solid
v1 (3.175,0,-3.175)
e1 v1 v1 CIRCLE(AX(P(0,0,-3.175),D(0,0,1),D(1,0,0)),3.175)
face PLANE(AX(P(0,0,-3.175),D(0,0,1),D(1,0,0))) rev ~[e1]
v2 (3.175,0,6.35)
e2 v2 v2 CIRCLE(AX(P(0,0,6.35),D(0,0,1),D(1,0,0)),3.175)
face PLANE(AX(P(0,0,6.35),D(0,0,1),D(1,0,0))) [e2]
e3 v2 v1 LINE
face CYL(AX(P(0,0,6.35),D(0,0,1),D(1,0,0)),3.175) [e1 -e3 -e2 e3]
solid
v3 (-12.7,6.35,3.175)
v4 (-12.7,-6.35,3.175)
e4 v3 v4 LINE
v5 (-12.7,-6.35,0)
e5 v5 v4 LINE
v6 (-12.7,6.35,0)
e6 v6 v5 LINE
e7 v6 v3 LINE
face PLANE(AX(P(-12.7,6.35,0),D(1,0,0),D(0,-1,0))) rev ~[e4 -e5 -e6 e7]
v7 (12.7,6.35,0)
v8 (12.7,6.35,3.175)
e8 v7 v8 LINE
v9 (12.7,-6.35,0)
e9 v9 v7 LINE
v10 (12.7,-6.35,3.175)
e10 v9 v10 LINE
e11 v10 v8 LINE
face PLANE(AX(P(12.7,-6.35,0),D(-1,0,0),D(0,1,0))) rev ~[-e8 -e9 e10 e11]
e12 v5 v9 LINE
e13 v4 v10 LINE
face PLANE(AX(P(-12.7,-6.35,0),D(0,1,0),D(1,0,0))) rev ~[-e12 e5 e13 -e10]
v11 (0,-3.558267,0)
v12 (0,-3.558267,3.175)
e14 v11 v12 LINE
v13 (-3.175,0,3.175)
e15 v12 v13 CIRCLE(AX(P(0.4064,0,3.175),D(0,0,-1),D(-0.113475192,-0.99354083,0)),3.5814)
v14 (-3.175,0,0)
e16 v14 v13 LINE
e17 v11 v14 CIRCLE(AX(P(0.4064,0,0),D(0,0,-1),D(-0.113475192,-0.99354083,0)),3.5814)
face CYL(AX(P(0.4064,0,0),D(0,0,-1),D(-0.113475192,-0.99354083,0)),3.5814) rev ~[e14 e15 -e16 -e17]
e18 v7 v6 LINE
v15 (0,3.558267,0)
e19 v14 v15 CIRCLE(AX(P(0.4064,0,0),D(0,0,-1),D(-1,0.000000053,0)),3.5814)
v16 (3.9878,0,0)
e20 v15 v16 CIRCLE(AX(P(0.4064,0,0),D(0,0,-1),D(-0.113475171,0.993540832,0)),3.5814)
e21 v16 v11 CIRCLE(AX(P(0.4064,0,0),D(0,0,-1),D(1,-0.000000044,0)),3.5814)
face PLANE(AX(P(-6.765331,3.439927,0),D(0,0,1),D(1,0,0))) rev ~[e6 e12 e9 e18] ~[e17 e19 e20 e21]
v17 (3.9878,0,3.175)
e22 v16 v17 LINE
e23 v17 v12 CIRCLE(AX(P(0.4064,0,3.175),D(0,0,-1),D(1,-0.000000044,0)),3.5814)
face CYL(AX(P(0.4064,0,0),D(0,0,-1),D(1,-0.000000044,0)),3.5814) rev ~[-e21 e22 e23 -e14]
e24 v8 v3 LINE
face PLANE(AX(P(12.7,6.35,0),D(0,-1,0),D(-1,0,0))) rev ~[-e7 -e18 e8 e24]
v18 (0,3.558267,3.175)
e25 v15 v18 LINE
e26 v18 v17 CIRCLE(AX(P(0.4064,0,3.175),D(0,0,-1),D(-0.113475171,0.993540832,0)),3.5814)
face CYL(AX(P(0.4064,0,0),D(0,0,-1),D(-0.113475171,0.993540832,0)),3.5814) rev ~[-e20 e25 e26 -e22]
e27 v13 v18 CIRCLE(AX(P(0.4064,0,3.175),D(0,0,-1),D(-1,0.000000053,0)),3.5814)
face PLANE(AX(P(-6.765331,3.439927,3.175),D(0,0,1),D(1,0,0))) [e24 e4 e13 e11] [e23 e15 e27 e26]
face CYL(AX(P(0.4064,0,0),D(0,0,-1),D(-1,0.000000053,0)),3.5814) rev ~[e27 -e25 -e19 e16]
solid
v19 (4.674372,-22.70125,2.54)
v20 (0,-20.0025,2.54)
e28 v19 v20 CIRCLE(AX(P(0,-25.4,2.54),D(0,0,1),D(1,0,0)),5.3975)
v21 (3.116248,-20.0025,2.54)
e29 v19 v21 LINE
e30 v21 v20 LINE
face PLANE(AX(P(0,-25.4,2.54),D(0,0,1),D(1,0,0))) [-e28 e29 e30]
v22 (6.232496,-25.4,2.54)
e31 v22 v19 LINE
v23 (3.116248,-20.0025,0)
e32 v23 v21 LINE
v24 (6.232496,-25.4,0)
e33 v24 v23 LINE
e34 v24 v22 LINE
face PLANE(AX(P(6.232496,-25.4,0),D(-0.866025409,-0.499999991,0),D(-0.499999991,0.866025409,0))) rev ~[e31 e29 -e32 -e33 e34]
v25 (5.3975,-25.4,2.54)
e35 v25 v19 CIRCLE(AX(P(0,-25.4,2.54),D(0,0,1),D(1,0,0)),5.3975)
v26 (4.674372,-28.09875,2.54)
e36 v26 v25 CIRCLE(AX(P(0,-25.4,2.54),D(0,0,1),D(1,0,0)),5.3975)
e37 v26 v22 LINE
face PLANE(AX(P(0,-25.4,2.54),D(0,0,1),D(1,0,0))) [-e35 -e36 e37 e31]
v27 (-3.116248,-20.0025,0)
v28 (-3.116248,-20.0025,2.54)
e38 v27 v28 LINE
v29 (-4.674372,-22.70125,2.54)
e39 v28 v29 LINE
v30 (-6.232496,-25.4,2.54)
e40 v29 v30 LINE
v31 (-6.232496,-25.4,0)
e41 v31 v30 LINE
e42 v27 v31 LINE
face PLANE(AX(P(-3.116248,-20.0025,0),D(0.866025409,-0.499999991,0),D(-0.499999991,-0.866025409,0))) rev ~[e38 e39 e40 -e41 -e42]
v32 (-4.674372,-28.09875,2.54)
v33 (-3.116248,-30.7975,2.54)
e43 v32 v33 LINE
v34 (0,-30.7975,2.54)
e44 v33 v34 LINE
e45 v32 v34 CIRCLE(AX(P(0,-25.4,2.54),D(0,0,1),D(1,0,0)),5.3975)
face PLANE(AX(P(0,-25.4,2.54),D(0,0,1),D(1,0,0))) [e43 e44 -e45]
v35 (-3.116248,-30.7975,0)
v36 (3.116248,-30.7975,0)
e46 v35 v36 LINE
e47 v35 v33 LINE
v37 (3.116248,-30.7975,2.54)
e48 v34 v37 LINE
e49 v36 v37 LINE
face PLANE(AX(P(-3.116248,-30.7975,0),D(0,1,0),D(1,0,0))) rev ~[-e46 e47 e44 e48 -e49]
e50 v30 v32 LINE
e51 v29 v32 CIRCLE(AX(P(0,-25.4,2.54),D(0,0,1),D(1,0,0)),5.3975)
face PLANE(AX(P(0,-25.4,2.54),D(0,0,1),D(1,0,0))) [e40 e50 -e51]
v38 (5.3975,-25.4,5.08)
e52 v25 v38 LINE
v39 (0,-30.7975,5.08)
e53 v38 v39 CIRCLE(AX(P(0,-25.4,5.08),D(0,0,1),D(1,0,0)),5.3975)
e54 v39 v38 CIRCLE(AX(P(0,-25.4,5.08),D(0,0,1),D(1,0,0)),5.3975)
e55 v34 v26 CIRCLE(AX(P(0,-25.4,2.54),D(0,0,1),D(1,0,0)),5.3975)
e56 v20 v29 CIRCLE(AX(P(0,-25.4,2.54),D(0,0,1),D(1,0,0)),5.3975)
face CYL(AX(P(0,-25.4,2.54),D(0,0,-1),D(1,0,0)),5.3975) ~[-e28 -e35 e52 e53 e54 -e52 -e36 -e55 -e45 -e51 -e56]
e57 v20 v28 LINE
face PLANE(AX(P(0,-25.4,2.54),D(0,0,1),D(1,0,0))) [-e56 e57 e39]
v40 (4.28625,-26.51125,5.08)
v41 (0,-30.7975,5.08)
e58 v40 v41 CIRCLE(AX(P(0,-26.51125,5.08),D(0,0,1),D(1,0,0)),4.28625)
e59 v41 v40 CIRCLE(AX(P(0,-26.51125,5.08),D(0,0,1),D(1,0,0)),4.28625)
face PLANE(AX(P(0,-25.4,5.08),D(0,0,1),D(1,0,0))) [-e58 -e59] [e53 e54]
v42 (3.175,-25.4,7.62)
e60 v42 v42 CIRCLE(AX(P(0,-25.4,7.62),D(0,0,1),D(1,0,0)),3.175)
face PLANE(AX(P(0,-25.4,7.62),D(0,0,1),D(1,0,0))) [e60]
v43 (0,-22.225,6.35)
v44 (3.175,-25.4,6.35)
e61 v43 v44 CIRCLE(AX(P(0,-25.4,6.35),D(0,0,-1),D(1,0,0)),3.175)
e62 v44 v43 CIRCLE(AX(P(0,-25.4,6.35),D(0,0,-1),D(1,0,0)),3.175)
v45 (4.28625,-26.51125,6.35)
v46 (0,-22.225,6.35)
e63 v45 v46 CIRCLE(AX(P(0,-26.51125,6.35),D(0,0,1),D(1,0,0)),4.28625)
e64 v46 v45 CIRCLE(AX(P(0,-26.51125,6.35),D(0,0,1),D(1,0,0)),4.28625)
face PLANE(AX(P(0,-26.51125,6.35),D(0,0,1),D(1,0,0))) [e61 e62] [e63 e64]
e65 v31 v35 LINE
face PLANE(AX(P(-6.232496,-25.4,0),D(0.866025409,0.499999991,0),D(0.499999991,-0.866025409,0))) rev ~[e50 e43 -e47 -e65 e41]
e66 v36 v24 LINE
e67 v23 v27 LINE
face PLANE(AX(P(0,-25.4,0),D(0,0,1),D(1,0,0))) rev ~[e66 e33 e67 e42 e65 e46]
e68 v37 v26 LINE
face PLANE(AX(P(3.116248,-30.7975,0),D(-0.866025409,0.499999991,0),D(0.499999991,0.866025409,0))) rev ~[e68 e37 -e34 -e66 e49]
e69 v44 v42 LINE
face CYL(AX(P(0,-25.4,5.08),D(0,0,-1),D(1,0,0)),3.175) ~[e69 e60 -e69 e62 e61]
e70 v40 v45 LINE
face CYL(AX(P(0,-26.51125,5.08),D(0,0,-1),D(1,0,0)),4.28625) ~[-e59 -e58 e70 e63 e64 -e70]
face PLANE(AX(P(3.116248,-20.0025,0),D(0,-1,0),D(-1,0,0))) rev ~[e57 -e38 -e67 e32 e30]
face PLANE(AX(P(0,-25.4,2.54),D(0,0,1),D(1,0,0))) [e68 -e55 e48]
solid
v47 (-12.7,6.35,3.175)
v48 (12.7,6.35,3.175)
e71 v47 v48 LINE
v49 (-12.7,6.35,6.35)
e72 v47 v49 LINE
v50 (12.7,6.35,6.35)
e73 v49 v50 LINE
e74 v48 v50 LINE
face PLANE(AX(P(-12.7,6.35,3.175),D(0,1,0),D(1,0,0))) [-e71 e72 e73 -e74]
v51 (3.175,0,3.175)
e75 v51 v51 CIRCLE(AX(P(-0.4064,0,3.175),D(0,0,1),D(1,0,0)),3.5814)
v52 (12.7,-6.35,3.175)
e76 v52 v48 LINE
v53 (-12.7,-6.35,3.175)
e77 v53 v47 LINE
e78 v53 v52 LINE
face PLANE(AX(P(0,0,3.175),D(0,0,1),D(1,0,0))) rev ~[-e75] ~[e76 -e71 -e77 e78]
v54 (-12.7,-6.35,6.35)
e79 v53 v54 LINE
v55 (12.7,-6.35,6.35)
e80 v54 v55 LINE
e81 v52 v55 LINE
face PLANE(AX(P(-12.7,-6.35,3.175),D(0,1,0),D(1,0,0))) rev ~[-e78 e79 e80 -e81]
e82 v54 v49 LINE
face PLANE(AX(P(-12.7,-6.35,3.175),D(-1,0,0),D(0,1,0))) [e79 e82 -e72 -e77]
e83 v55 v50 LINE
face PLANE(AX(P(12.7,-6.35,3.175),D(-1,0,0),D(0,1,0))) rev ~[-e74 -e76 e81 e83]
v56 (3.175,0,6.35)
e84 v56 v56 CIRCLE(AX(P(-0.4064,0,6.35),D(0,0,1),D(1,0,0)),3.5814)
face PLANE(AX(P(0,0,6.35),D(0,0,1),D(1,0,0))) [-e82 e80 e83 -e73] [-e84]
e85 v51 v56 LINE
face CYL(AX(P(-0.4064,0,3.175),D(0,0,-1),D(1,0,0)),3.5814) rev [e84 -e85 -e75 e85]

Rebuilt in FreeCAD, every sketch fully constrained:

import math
import FreeCAD as App
import Part
import Sketcher
from FreeCAD import Vector
Q = App.Units.Quantity

doc = App.newDocument("Part")
body = doc.addObject("PartDesign::Body", "Body")

# Sketch on XY plane
sketch1 = doc.addObject("Sketcher::SketchObject", "Sketch")
body.addObject(sketch1)
sketch1.AttachmentSupport = (doc.XY_Plane, [""])
sketch1.MapMode = "FlatFace"
sketch1.addGeometry([
    Part.LineSegment(Vector(-12.7, 6.3, 0), Vector(-12.7, -6.3, 0)),  # 0
    Part.LineSegment(Vector(-12.7, -6.3, 0), Vector(12.7, -6.3, 0)),  # 1
    Part.LineSegment(Vector(12.7, -6.3, 0), Vector(12.7, 6.3, 0)),  # 2
    Part.LineSegment(Vector(12.7, 6.3, 0), Vector(-12.7, 6.3, 0)),  # 3
    Part.ArcOfCircle(Part.Circle(Vector(0.4, 0, 0), Vector(0, 0, 1), 3.6), math.radians(-180), math.radians(-97)),  # 4
    Part.ArcOfCircle(Part.Circle(Vector(0.4, 0, 0), Vector(0, 0, 1), 3.6), math.radians(97), math.radians(180)),  # 5
    Part.ArcOfCircle(Part.Circle(Vector(0.4, 0, 0), Vector(0, 0, 1), 3.6), math.radians(0), math.radians(97)),  # 6
    Part.ArcOfCircle(Part.Circle(Vector(0.4, 0, 0), Vector(0, 0, 1), 3.6), math.radians(-97), math.radians(0)),  # 7
], False)
sketch1.addConstraint([
    Sketcher.Constraint("Coincident", 0, 2, 1, 1),
    Sketcher.Constraint("Coincident", 1, 2, 2, 1),
    Sketcher.Constraint("Coincident", 2, 2, 3, 1),
    Sketcher.Constraint("Coincident", 3, 2, 0, 1),
    Sketcher.Constraint("Tangent", 4, 1, 5, 2),
    Sketcher.Constraint("Tangent", 5, 1, 6, 2),
    Sketcher.Constraint("Tangent", 6, 1, 7, 2),
    Sketcher.Constraint("Tangent", 7, 1, 4, 2),
    Sketcher.Constraint("Vertical", 0),
    Sketcher.Constraint("Horizontal", 1),
    Sketcher.Constraint("Vertical", 2),
    Sketcher.Constraint("Horizontal", 3),
    Sketcher.Constraint("Equal", 4, 5),
    Sketcher.Constraint("Symmetric", 0, 2, 2, 2, -1, 1),
    Sketcher.Constraint("Symmetric", 5, 1, 7, 1, -1, 1),
    Sketcher.Constraint("PointOnObject", 4, 3, -1),
    Sketcher.Constraint("PointOnObject", 4, 1, -1),
    Sketcher.Constraint("PointOnObject", 6, 1, -1),
    Sketcher.Constraint("DistanceX", 1, 1, 1, 2, Q("1 in")),
    Sketcher.Constraint("DistanceY", 0, 2, 0, 1, Q("0.5 in")),
    Sketcher.Constraint("Radius", 4, Q("0.141 in")),
    Sketcher.Constraint("DistanceX", -1, 1, 4, 3, Q("0.016 in")),
])
pad1 = doc.addObject("PartDesign::Pad", "Pad")
body.addObject(pad1)
pad1.Profile = sketch1
pad1.Length = Q("0.125 in")
body2 = doc.addObject("PartDesign::Body", "Body001")

# Sketch on XY plane
sketch2 = doc.addObject("Sketcher::SketchObject", "Sketch001")
body2.addObject(sketch2)
sketch2.AttachmentSupport = (doc.getObject("XY_Plane001"), [""])
sketch2.MapMode = "FlatFace"
sketch2.AttachmentOffset = App.Placement(Vector(0, 0, 0.125 * 25.4), App.Rotation())
sketch2.addGeometry([
    Part.LineSegment(Vector(-12.7, 6.3, 0), Vector(-12.7, -6.3, 0)),  # 0
    Part.LineSegment(Vector(-12.7, -6.3, 0), Vector(12.7, -6.3, 0)),  # 1
    Part.LineSegment(Vector(12.7, -6.3, 0), Vector(12.7, 6.3, 0)),  # 2
    Part.LineSegment(Vector(12.7, 6.3, 0), Vector(-12.7, 6.3, 0)),  # 3
    Part.Circle(Vector(-0.4, 0, 0), Vector(0, 0, 1), 3.6),  # 4
], False)
sketch2.addConstraint([
    Sketcher.Constraint("Coincident", 0, 2, 1, 1),
    Sketcher.Constraint("Coincident", 1, 2, 2, 1),
    Sketcher.Constraint("Coincident", 2, 2, 3, 1),
    Sketcher.Constraint("Coincident", 3, 2, 0, 1),
    Sketcher.Constraint("Vertical", 0),
    Sketcher.Constraint("Horizontal", 1),
    Sketcher.Constraint("Vertical", 2),
    Sketcher.Constraint("Horizontal", 3),
    Sketcher.Constraint("Symmetric", 0, 2, 2, 2, -1, 1),
    Sketcher.Constraint("PointOnObject", 4, 3, -1),
    Sketcher.Constraint("DistanceX", 1, 1, 1, 2, Q("1 in")),
    Sketcher.Constraint("Diameter", 4, Q("0.282 in")),
    Sketcher.Constraint("DistanceY", 0, 2, 0, 1, Q("0.5 in")),
    Sketcher.Constraint("DistanceX", 4, 3, -1, 1, Q("0.016 in")),
])
pad2 = doc.addObject("PartDesign::Pad", "Pad001")
body2.addObject(pad2)
pad2.Profile = sketch2
pad2.Length = Q("0.125 in")
body3 = doc.addObject("PartDesign::Body", "Body002")

# Sketch on XY plane
sketch3 = doc.addObject("Sketcher::SketchObject", "Sketch002")
body3.addObject(sketch3)
sketch3.AttachmentSupport = (doc.getObject("XY_Plane002"), [""])
sketch3.MapMode = "FlatFace"
sketch3.AttachmentOffset = App.Placement(Vector(0, 0, 0.25 * 25.4), App.Rotation())
sketch3.addGeometry(Part.Circle(Vector(0, 0, 0), Vector(0, 0, 1), 3.2), False)
sketch3.addConstraint([
    Sketcher.Constraint("Coincident", 0, 3, -1, 1),
    Sketcher.Constraint("Diameter", 0, Q("0.25 in")),
])
pad3 = doc.addObject("PartDesign::Pad", "Pad002")
body3.addObject(pad3)
pad3.Profile = sketch3
pad3.Length = Q("0.375 in")
pad3.Reversed = True
body4 = doc.addObject("PartDesign::Body", "Body003")

# Sketch on XY plane
sketch4 = doc.addObject("Sketcher::SketchObject", "Sketch003")
body4.addObject(sketch4)
sketch4.AttachmentSupport = (doc.getObject("XY_Plane003"), [""])
sketch4.MapMode = "FlatFace"
sketch4.addGeometry([
    Part.LineSegment(Vector(3, -31, 0), Vector(6, -25, 0)),  # 0
    Part.LineSegment(Vector(6, -25, 0), Vector(3, -20, 0)),  # 1
    Part.LineSegment(Vector(3, -20, 0), Vector(-3, -20, 0)),  # 2
    Part.LineSegment(Vector(-3, -20, 0), Vector(-6, -25, 0)),  # 3
    Part.LineSegment(Vector(-6, -25, 0), Vector(-3, -31, 0)),  # 4
    Part.LineSegment(Vector(-3, -31, 0), Vector(3, -31, 0)),  # 5
], False)
sketch4.addConstraint([
    Sketcher.Constraint("Coincident", 0, 2, 1, 1),
    Sketcher.Constraint("Coincident", 1, 2, 2, 1),
    Sketcher.Constraint("Coincident", 2, 2, 3, 1),
    Sketcher.Constraint("Coincident", 3, 2, 4, 1),
    Sketcher.Constraint("Coincident", 4, 2, 5, 1),
    Sketcher.Constraint("Coincident", 5, 2, 0, 1),
    Sketcher.Constraint("Horizontal", 2),
    Sketcher.Constraint("Horizontal", 5),
    Sketcher.Constraint("Symmetric", 0, 2, 3, 2, -2),
    Sketcher.Constraint("Parallel", 0, 3),
    Sketcher.Constraint("Parallel", 1, 4),
    Sketcher.Constraint("Vertical", 2, 2, 4, 2),
    Sketcher.Constraint("Vertical", 1, 2, 5, 2),
    Sketcher.Constraint("DistanceY", 0, 2, -1, 1, Q("1 in")),
    Sketcher.Constraint("Angle", 0, Q("60.000001 deg")),
    Sketcher.Constraint("DistanceY", 4, 2, 2, 2, Q("0.425 in")),
    Sketcher.Constraint("DistanceX", 2, 2, 2, 1, Q("6.232496 mm")),
])
pad4 = doc.addObject("PartDesign::Pad", "Pad003")
body4.addObject(pad4)
pad4.Profile = sketch4
pad4.Length = Q("0.1 in")

# Sketch on XY plane
sketch5 = doc.addObject("Sketcher::SketchObject", "Sketch004")
body4.addObject(sketch5)
sketch5.AttachmentSupport = (doc.getObject("XY_Plane003"), [""])
sketch5.MapMode = "FlatFace"
sketch5.AttachmentOffset = App.Placement(Vector(0, 0, 0.1 * 25.4), App.Rotation())
sketch5.addGeometry(Part.Circle(Vector(0, -25, 0), Vector(0, 0, 1), 5), False)
sketch5.addConstraint([
    Sketcher.Constraint("PointOnObject", 0, 3, -2),
    Sketcher.Constraint("Diameter", 0, Q("0.425 in")),
    Sketcher.Constraint("DistanceY", 0, 3, -1, 1, Q("1 in")),
])
pad5 = doc.addObject("PartDesign::Pad", "Pad004")
body4.addObject(pad5)
pad5.Profile = sketch5
pad5.Length = Q("0.1 in")

# Sketch on XY plane
sketch6 = doc.addObject("Sketcher::SketchObject", "Sketch005")
body4.addObject(sketch6)
sketch6.AttachmentSupport = (doc.getObject("XY_Plane003"), [""])
sketch6.MapMode = "FlatFace"
sketch6.AttachmentOffset = App.Placement(Vector(0, 0, 0.2 * 25.4), App.Rotation())
sketch6.addGeometry(Part.Circle(Vector(0, -25.4, 0), Vector(0, 0, 1), 3.2), False)
sketch6.addConstraint([
    Sketcher.Constraint("PointOnObject", 0, 3, -2),
    Sketcher.Constraint("Diameter", 0, Q("0.25 in")),
    Sketcher.Constraint("DistanceY", 0, 3, -1, 1, Q("1 in")),
])
pad6 = doc.addObject("PartDesign::Pad", "Pad005")
body4.addObject(pad6)
pad6.Profile = sketch6
pad6.Length = Q("0.1 in")

# Sketch on XY plane
sketch7 = doc.addObject("Sketcher::SketchObject", "Sketch006")
body4.addObject(sketch7)
sketch7.AttachmentSupport = (doc.getObject("XY_Plane003"), [""])
sketch7.MapMode = "FlatFace"
sketch7.AttachmentOffset = App.Placement(Vector(0, 0, 0.2 * 25.4), App.Rotation())
sketch7.addGeometry(Part.Circle(Vector(0, -26.5, 0), Vector(0, 0, 1), 4.3), False)
sketch7.addConstraint([
    Sketcher.Constraint("PointOnObject", 0, 3, -2),
    Sketcher.Constraint("Diameter", 0, Q("0.3375 in")),
    Sketcher.Constraint("DistanceY", 0, 3, -1, 1, Q("26.51125 mm")),
])
pad7 = doc.addObject("PartDesign::Pad", "Pad006")
body4.addObject(pad7)
pad7.Profile = sketch7
pad7.Length = Q("0.05 in")

doc.recompute()
